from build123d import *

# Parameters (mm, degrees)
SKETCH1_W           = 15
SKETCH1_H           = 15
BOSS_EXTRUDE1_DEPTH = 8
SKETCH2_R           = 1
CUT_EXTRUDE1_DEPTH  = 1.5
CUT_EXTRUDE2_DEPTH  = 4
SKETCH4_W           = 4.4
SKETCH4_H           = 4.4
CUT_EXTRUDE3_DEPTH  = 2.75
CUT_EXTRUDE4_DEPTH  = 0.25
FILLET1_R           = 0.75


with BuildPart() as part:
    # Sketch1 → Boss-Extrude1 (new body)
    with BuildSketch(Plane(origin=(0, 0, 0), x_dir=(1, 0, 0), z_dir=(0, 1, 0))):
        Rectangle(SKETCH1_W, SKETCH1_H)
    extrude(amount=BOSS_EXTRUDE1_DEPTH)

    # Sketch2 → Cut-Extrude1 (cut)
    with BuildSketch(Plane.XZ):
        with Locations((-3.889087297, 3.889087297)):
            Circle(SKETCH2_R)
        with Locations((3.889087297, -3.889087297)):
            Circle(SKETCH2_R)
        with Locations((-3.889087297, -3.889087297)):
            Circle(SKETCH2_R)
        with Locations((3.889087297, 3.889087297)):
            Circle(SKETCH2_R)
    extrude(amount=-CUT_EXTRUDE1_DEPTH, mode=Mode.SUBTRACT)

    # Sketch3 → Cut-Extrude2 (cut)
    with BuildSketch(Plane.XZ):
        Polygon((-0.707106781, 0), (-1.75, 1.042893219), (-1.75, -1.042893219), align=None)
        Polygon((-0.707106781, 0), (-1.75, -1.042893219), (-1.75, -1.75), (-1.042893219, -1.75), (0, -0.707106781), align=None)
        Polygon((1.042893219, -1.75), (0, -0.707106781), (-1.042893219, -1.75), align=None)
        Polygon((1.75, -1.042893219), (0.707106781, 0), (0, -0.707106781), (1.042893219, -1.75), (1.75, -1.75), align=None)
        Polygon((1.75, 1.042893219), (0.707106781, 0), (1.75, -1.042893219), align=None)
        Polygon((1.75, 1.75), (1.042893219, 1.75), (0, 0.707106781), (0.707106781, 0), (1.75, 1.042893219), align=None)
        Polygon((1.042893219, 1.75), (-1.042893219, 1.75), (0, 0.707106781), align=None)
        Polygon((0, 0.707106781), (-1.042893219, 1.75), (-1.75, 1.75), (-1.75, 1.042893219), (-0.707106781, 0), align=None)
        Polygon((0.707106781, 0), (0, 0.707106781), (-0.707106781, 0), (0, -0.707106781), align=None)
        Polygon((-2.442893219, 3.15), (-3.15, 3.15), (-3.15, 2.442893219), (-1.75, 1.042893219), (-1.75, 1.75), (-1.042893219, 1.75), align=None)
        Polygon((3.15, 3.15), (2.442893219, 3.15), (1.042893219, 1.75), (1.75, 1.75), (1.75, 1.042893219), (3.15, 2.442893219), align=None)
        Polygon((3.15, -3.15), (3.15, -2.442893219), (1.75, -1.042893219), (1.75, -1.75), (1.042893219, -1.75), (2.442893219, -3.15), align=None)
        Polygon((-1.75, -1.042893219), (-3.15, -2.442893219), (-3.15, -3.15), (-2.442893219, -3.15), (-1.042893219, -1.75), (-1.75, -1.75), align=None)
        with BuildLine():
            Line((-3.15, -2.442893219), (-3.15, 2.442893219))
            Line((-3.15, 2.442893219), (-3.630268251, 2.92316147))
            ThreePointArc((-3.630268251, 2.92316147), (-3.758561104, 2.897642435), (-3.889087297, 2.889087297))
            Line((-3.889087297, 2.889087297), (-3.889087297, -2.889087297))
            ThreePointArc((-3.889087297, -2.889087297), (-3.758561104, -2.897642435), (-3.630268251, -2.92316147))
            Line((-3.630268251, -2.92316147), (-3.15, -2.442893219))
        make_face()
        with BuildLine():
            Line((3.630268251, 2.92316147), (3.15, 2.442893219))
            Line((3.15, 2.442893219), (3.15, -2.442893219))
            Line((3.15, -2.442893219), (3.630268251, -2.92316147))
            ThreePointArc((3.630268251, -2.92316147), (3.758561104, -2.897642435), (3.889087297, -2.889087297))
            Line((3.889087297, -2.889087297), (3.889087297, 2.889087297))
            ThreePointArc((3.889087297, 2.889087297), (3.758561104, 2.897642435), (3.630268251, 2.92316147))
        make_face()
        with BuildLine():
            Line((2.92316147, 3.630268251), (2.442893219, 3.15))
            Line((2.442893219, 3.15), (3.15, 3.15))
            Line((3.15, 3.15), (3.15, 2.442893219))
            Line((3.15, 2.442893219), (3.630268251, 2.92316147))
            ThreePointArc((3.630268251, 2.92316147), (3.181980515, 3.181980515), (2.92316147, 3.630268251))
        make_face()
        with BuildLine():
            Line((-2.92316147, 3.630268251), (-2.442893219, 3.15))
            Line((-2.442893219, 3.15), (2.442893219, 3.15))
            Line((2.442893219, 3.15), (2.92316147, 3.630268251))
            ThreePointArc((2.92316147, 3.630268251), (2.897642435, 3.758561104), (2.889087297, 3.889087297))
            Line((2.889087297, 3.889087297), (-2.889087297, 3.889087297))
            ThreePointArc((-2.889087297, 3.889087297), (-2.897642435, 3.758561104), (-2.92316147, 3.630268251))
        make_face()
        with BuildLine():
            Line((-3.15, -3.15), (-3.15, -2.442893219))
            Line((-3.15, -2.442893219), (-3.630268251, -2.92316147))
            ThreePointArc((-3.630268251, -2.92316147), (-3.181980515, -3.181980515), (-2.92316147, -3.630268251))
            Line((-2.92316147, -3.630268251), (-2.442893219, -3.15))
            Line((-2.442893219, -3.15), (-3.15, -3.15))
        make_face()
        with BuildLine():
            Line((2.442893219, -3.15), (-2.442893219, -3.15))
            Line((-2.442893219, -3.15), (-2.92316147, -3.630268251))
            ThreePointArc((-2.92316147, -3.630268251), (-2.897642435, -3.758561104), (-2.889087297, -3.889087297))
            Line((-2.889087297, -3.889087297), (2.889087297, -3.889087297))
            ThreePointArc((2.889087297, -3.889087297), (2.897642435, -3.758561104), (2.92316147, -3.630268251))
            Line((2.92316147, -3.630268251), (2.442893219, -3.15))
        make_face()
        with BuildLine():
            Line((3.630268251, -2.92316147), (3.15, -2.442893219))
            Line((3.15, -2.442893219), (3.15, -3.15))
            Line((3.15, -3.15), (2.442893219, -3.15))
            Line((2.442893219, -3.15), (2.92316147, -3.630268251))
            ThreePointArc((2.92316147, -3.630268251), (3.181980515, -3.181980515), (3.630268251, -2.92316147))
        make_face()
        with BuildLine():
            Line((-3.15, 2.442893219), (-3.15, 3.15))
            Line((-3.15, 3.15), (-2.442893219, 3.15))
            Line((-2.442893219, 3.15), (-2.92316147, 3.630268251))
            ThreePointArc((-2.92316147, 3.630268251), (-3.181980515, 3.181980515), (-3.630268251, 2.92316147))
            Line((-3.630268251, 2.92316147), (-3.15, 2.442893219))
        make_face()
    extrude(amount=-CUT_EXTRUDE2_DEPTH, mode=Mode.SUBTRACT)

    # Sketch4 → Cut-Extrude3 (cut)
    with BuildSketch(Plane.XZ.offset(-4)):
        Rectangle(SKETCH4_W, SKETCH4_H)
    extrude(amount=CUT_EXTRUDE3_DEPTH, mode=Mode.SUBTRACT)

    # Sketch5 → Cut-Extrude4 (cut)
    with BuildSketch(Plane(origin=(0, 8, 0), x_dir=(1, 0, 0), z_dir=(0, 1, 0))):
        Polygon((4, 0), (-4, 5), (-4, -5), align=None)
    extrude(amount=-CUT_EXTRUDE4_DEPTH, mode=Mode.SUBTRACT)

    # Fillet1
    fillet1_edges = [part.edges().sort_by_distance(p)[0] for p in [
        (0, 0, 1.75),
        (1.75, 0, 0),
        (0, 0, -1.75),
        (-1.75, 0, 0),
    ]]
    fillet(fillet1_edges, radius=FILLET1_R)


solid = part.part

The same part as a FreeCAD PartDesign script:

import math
import FreeCAD as App
import Part
import Sketcher
Q = App.Units.Quantity


def edges_at(feature, points):
    """Names of the edges that pass closest to the given points."""
    edges = feature.Shape.Edges
    near = lambda p: min(range(len(edges)), key=lambda i: edges[i].distToShape(Part.Vertex(*p))[0])
    return sorted({f"Edge{near(p) + 1}" for p in points})

doc = App.newDocument("Part")
body = doc.addObject("PartDesign::Body", "Body")

# Sketch on XZ plane
sketch1 = body.newObject("Sketcher::SketchObject", "Sketch")
sketch1.AttachmentSupport = (doc.getObject("XZ_Plane"), [""])
sketch1.MapMode = "FlatFace"
sketch1.addGeometry(Part.LineSegment(App.Vector(-8, -8, 0), App.Vector(-8, 8, 0)), False)
sketch1.addGeometry(Part.LineSegment(App.Vector(-8, 8, 0), App.Vector(8, 8, 0)), False)
sketch1.addGeometry(Part.LineSegment(App.Vector(8, 8, 0), App.Vector(8, -8, 0)), False)
sketch1.addGeometry(Part.LineSegment(App.Vector(8, -8, 0), App.Vector(-8, -8, 0)), False)
sketch1.addConstraint(Sketcher.Constraint("Coincident", 0, 2, 1, 1))
sketch1.addConstraint(Sketcher.Constraint("Coincident", 1, 2, 2, 1))
sketch1.addConstraint(Sketcher.Constraint("Coincident", 2, 2, 3, 1))
sketch1.addConstraint(Sketcher.Constraint("Coincident", 3, 2, 0, 1))
sketch1.addConstraint(Sketcher.Constraint("Vertical", 0))
sketch1.addConstraint(Sketcher.Constraint("Horizontal", 1))
sketch1.addConstraint(Sketcher.Constraint("Vertical", 2))
sketch1.addConstraint(Sketcher.Constraint("Horizontal", 3))
sketch1.addConstraint(Sketcher.Constraint("Symmetric", 0, 2, 2, 2, -1, 1))
sketch1.addConstraint(Sketcher.Constraint("Equal", 3, 0))
sketch1.addConstraint(Sketcher.Constraint("DistanceX", 1, 1, 1, 2, Q("15 mm")))
pad1 = body.newObject("PartDesign::Pad", "Pad")
pad1.Profile = sketch1
pad1.Length = 8
pad1.Reversed = True

# Sketch on XZ plane
sketch2 = body.newObject("Sketcher::SketchObject", "Sketch001")
sketch2.AttachmentSupport = (doc.getObject("XZ_Plane"), [""])
sketch2.MapMode = "FlatFace"
sketch2.addGeometry(Part.Circle(App.Vector(-3.9, 3.9, 0), App.Vector(0, 0, 1), 1), False)
sketch2.addGeometry(Part.Circle(App.Vector(3.9, -3.9, 0), App.Vector(0, 0, 1), 1), False)
sketch2.addGeometry(Part.Circle(App.Vector(-3.9, -3.9, 0), App.Vector(0, 0, 1), 1), False)
sketch2.addGeometry(Part.Circle(App.Vector(3.9, 3.9, 0), App.Vector(0, 0, 1), 1), False)
sketch2.addConstraint(Sketcher.Constraint("Equal", 0, 1))
sketch2.addConstraint(Sketcher.Constraint("Equal", 1, 2))
sketch2.addConstraint(Sketcher.Constraint("Equal", 2, 3))
sketch2.addConstraint(Sketcher.Constraint("Symmetric", 0, 3, 1, 3, -1, 1))
sketch2.addConstraint(Sketcher.Constraint("Symmetric", 2, 3, 3, 3, -1, 1))
sketch2.addConstraint(Sketcher.Constraint("Symmetric", 1, 3, 2, 3, -2))
sketch2.addConstraint(Sketcher.Constraint("Diameter", 0, Q("2 mm")))
sketch2.addConstraint(Sketcher.Constraint("DistanceX", 0, 3, -1, 1, Q("3.889087 mm")))
sketch2.addConstraint(Sketcher.Constraint("DistanceY", -1, 1, 0, 3, Q("3.889087 mm")))
pocket1 = body.newObject("PartDesign::Pocket", "Pocket")
pocket1.Profile = sketch2
pocket1.Length = 1.5

# Sketch on XZ plane
sketch3 = body.newObject("Sketcher::SketchObject", "Sketch002")
sketch3.AttachmentSupport = (doc.getObject("XZ_Plane"), [""])
sketch3.MapMode = "FlatFace"
sketch3.addGeometry(Part.ArcOfCircle(Part.Circle(App.Vector(-3.89, 3.89, 0), App.Vector(0, 0, 1), 1), math.radians(-15), math.radians(0)), False)
sketch3.addGeometry(Part.ArcOfCircle(Part.Circle(App.Vector(-3.89, 3.89, 0), App.Vector(0, 0, 1), 1), math.radians(-75), math.radians(-15)), False)
sketch3.addGeometry(Part.ArcOfCircle(Part.Circle(App.Vector(-3.89, 3.89, 0), App.Vector(0, 0, 1), 1), math.radians(-90), math.radians(-75)), False)
sketch3.addGeometry(Part.LineSegment(App.Vector(-3.89, 2.89, 0), App.Vector(-3.89, -2.89, 0)), False)
sketch3.addGeometry(Part.ArcOfCircle(Part.Circle(App.Vector(-3.89, -3.89, 0), App.Vector(0, 0, 1), 1), math.radians(75), math.radians(90)), False)
sketch3.addGeometry(Part.ArcOfCircle(Part.Circle(App.Vector(-3.89, -3.89, 0), App.Vector(0, 0, 1), 1), math.radians(15), math.radians(75)), False)
sketch3.addGeometry(Part.ArcOfCircle(Part.Circle(App.Vector(-3.89, -3.89, 0), App.Vector(0, 0, 1), 1), math.radians(0), math.radians(15)), False)
sketch3.addGeometry(Part.LineSegment(App.Vector(-2.89, -3.89, 0), App.Vector(2.89, -3.89, 0)), False)
sketch3.addGeometry(Part.ArcOfCircle(Part.Circle(App.Vector(3.89, -3.89, 0), App.Vector(0, 0, 1), 1), math.radians(165), math.radians(180)), False)
sketch3.addGeometry(Part.ArcOfCircle(Part.Circle(App.Vector(3.89, -3.89, 0), App.Vector(0, 0, 1), 1), math.radians(105), math.radians(165)), False)
sketch3.addGeometry(Part.ArcOfCircle(Part.Circle(App.Vector(3.89, -3.89, 0), App.Vector(0, 0, 1), 1), math.radians(90), math.radians(105)), False)
sketch3.addGeometry(Part.LineSegment(App.Vector(3.89, -2.89, 0), App.Vector(3.89, 2.89, 0)), False)
sketch3.addGeometry(Part.ArcOfCircle(Part.Circle(App.Vector(3.89, 3.89, 0), App.Vector(0, 0, 1), 1), math.radians(-105), math.radians(-90)), False)
sketch3.addGeometry(Part.ArcOfCircle(Part.Circle(App.Vector(3.89, 3.89, 0), App.Vector(0, 0, 1), 1), math.radians(-165), math.radians(-105)), False)
sketch3.addGeometry(Part.ArcOfCircle(Part.Circle(App.Vector(3.89, 3.89, 0), App.Vector(0, 0, 1), 1), math.radians(180), math.radians(195)), False)
sketch3.addGeometry(Part.LineSegment(App.Vector(2.89, 3.89, 0), App.Vector(-2.89, 3.89, 0)), False)
sketch3.addGeometry(Part.LineSegment(App.Vector(-3.15, -2.44, 0), App.Vector(-3.15, 2.44, 0)), False)
sketch3.addGeometry(Part.LineSegment(App.Vector(-3.15, 2.44, 0), App.Vector(-1.75, 1.04, 0)), False)
sketch3.addGeometry(Part.LineSegment(App.Vector(-1.75, 1.04, 0), App.Vector(-1.75, -1.04, 0)), False)
sketch3.addGeometry(Part.LineSegment(App.Vector(-1.75, -1.04, 0), App.Vector(-3.15, -2.44, 0)), False)
sketch3.addGeometry(Part.LineSegment(App.Vector(1.04, -1.75, 0), App.Vector(2.44, -3.15, 0)), False)
sketch3.addGeometry(Part.LineSegment(App.Vector(2.44, -3.15, 0), App.Vector(-2.44, -3.15, 0)), False)
sketch3.addGeometry(Part.LineSegment(App.Vector(-2.44, -3.15, 0), App.Vector(-1.04, -1.75, 0)), False)
sketch3.addGeometry(Part.LineSegment(App.Vector(-1.04, -1.75, 0), App.Vector(1.04, -1.75, 0)), False)
sketch3.addGeometry(Part.LineSegment(App.Vector(3.15, 2.44, 0), App.Vector(3.15, -2.44, 0)), False)
sketch3.addGeometry(Part.LineSegment(App.Vector(3.15, -2.44, 0), App.Vector(1.75, -1.04, 0)), False)
sketch3.addGeometry(Part.LineSegment(App.Vector(1.75, -1.04, 0), App.Vector(1.75, 1.04, 0)), False)
sketch3.addGeometry(Part.LineSegment(App.Vector(1.75, 1.04, 0), App.Vector(3.15, 2.44, 0)), False)
sketch3.addGeometry(Part.LineSegment(App.Vector(-1.04, 1.75, 0), App.Vector(-2.44, 3.15, 0)), False)
sketch3.addGeometry(Part.LineSegment(App.Vector(-2.44, 3.15, 0), App.Vector(2.44, 3.15, 0)), False)
sketch3.addGeometry(Part.LineSegment(App.Vector(2.44, 3.15, 0), App.Vector(1.04, 1.75, 0)), False)
sketch3.addGeometry(Part.LineSegment(App.Vector(1.04, 1.75, 0), App.Vector(-1.04, 1.75, 0)), False)
sketch3.addConstraint(Sketcher.Constraint("Tangent", 0, 1, 1, 2))
sketch3.addConstraint(Sketcher.Constraint("Tangent", 1, 1, 2, 2))
sketch3.addConstraint(Sketcher.Constraint("Coincident", 2, 1, 3, 1))
sketch3.addConstraint(Sketcher.Constraint("Coincident", 3, 2, 4, 2))
sketch3.addConstraint(Sketcher.Constraint("Tangent", 4, 1, 5, 2))
sketch3.addConstraint(Sketcher.Constraint("Tangent", 5, 1, 6, 2))
sketch3.addConstraint(Sketcher.Constraint("Coincident", 6, 1, 7, 1))
sketch3.addConstraint(Sketcher.Constraint("Coincident", 7, 2, 8, 2))
sketch3.addConstraint(Sketcher.Constraint("Tangent", 8, 1, 9, 2))
sketch3.addConstraint(Sketcher.Constraint("Tangent", 9, 1, 10, 2))
sketch3.addConstraint(Sketcher.Constraint("Coincident", 10, 1, 11, 1))
sketch3.addConstraint(Sketcher.Constraint("Coincident", 11, 2, 12, 2))
sketch3.addConstraint(Sketcher.Constraint("Tangent", 12, 1, 13, 2))
sketch3.addConstraint(Sketcher.Constraint("Tangent", 13, 1, 14, 2))
sketch3.addConstraint(Sketcher.Constraint("Coincident", 14, 1, 15, 1))
sketch3.addConstraint(Sketcher.Constraint("Coincident", 15, 2, 0, 2))
sketch3.addConstraint(Sketcher.Constraint("Coincident", 16, 2, 17, 1))
sketch3.addConstraint(Sketcher.Constraint("Coincident", 17, 2, 18, 1))
sketch3.addConstraint(Sketcher.Constraint("Coincident", 18, 2, 19, 1))
sketch3.addConstraint(Sketcher.Constraint("Coincident", 19, 2, 16, 1))
sketch3.addConstraint(Sketcher.Constraint("Coincident", 20, 2, 21, 1))
sketch3.addConstraint(Sketcher.Constraint("Coincident", 21, 2, 22, 1))
sketch3.addConstraint(Sketcher.Constraint("Coincident", 22, 2, 23, 1))
sketch3.addConstraint(Sketcher.Constraint("Coincident", 23, 2, 20, 1))
sketch3.addConstraint(Sketcher.Constraint("Coincident", 24, 2, 25, 1))
sketch3.addConstraint(Sketcher.Constraint("Coincident", 25, 2, 26, 1))
sketch3.addConstraint(Sketcher.Constraint("Coincident", 26, 2, 27, 1))
sketch3.addConstraint(Sketcher.Constraint("Coincident", 27, 2, 24, 1))
sketch3.addConstraint(Sketcher.Constraint("Coincident", 28, 2, 29, 1))
sketch3.addConstraint(Sketcher.Constraint("Coincident", 29, 2, 30, 1))
sketch3.addConstraint(Sketcher.Constraint("Coincident", 30, 2, 31, 1))
sketch3.addConstraint(Sketcher.Constraint("Coincident", 31, 2, 28, 1))
sketch3.addConstraint(Sketcher.Constraint("Vertical", 3))
sketch3.addConstraint(Sketcher.Constraint("Horizontal", 7))
sketch3.addConstraint(Sketcher.Constraint("Vertical", 11))
sketch3.addConstraint(Sketcher.Constraint("Horizontal", 15))
sketch3.addConstraint(Sketcher.Constraint("Vertical", 16))
sketch3.addConstraint(Sketcher.Constraint("Vertical", 18))
sketch3.addConstraint(Sketcher.Constraint("Horizontal", 21))
sketch3.addConstraint(Sketcher.Constraint("Horizontal", 23))
sketch3.addConstraint(Sketcher.Constraint("Vertical", 24))
sketch3.addConstraint(Sketcher.Constraint("Vertical", 26))
sketch3.addConstraint(Sketcher.Constraint("Horizontal", 29))
sketch3.addConstraint(Sketcher.Constraint("Horizontal", 31))
sketch3.addConstraint(Sketcher.Constraint("Coincident", 2, 3, 0, 3))
sketch3.addConstraint(Sketcher.Constraint("Coincident", 6, 3, 4, 3))
sketch3.addConstraint(Sketcher.Constraint("Coincident", 10, 3, 8, 3))
sketch3.addConstraint(Sketcher.Constraint("Coincident", 14, 3, 12, 3))
sketch3.addConstraint(Sketcher.Constraint("Equal", 2, 4))
sketch3.addConstraint(Sketcher.Constraint("Equal", 6, 8))
sketch3.addConstraint(Sketcher.Constraint("Equal", 10, 12))
sketch3.addConstraint(Sketcher.Constraint("Symmetric", 0, 3, 8, 3, -1, 1))
sketch3.addConstraint(Sketcher.Constraint("Symmetric", 4, 3, 12, 3, -1, 1))
sketch3.addConstraint(Sketcher.Constraint("Symmetric", 16, 2, 24, 2, -1, 1))
sketch3.addConstraint(Sketcher.Constraint("Symmetric", 17, 2, 25, 2, -1, 1))
sketch3.addConstraint(Sketcher.Constraint("Symmetric", 20, 2, 28, 2, -1, 1))
sketch3.addConstraint(Sketcher.Constraint("Symmetric", 22, 2, 30, 2, -1, 1))
sketch3.addConstraint(Sketcher.Constraint("Symmetric", 4, 3, 8, 3, -2))
sketch3.addConstraint(Sketcher.Constraint("Perpendicular", 17, 19))
sketch3.addConstraint(Sketcher.Constraint("Perpendicular", 19, 20))
sketch3.addConstraint(Sketcher.Constraint("Perpendicular", 20, 22))
sketch3.addConstraint(Sketcher.Constraint("Perpendicular", 25, 27))
sketch3.addConstraint(Sketcher.Constraint("Perpendicular", 27, 28))
sketch3.addConstraint(Sketcher.Constraint("Perpendicular", 28, 30))
sketch3.addConstraint(Sketcher.Constraint("Horizontal", 10, 3, 6, 1))
sketch3.addConstraint(Sketcher.Constraint("Horizontal", 5, 1, 8, 1))
sketch3.addConstraint(Sketcher.Constraint("Horizontal", 4, 1, 9, 1))
sketch3.addConstraint(Sketcher.Constraint("Horizontal", 1, 1, 12, 1))
sketch3.addConstraint(Sketcher.Constraint("Horizontal", 0, 1, 13, 1))
sketch3.addConstraint(Sketcher.Constraint("Horizontal", 13, 3, 14, 1))
sketch3.addConstraint(Sketcher.Constraint("Horizontal", 19, 2, 24, 2))
sketch3.addConstraint(Sketcher.Constraint("Horizontal", 18, 2, 25, 2))
sketch3.addConstraint(Sketcher.Constraint("Horizontal", 17, 2, 26, 2))
sketch3.addConstraint(Sketcher.Constraint("Vertical", 6, 3, 2, 1))
sketch3.addConstraint(Sketcher.Constraint("Vertical", 1, 1, 4, 1))
sketch3.addConstraint(Sketcher.Constraint("Vertical", 0, 1, 5, 1))
sketch3.addConstraint(Sketcher.Constraint("Vertical", 14, 3, 10, 1))
sketch3.addConstraint(Sketcher.Constraint("Vertical", 21, 2, 28, 2))
sketch3.addConstraint(Sketcher.Constraint("Equal", 15, 3))
sketch3.addConstraint(Sketcher.Constraint("Equal", 29, 16))
sketch3.addConstraint(Sketcher.Constraint("Equal", 31, 18))
sketch3.addConstraint(Sketcher.Constraint("Radius", 0, Q("1 mm")))
sketch3.addConstraint(Sketcher.Constraint("DistanceX", 16, 2, 17, 2, Q("1.4 mm")))
sketch3.addConstraint(Sketcher.Constraint("DistanceX", 16, 2, -1, 1, Q("3.15 mm")))
sketch3.addConstraint(Sketcher.Constraint("DistanceY", 20, 2, -1, 1, Q("3.15 mm")))
sketch3.addConstraint(Sketcher.Constraint("DistanceX", 7, 1, 7, 2, Q("5.778175 mm")))
sketch3.addConstraint(Sketcher.Constraint("DistanceX", 21, 2, 21, 1, Q("4.885786 mm")))
sketch3.addConstraint(Sketcher.Constraint("DistanceX", 0, 1, -1, 1, Q("2.923161 mm")))
sketch3.addConstraint(Sketcher.Constraint("DistanceX", 1, 1, -1, 1, Q("3.630268 mm")))
pocket2 = body.newObject("PartDesign::Pocket", "Pocket001")
pocket2.Profile = sketch3
pocket2.Length = 4

# Sketch on XZ plane
sketch4 = body.newObject("Sketcher::SketchObject", "Sketch003")
sketch4.AttachmentSupport = (doc.getObject("XZ_Plane"), [""])
sketch4.MapMode = "FlatFace"
sketch4.AttachmentOffset = App.Placement(App.Vector(0, 0, -4), App.Rotation())
sketch4.addGeometry(Part.LineSegment(App.Vector(-2.2, 2.2, 0), App.Vector(-2.2, -2.2, 0)), False)
sketch4.addGeometry(Part.LineSegment(App.Vector(-2.2, -2.2, 0), App.Vector(2.2, -2.2, 0)), False)
sketch4.addGeometry(Part.LineSegment(App.Vector(2.2, -2.2, 0), App.Vector(2.2, 2.2, 0)), False)
sketch4.addGeometry(Part.LineSegment(App.Vector(2.2, 2.2, 0), App.Vector(-2.2, 2.2, 0)), False)
sketch4.addConstraint(Sketcher.Constraint("Coincident", 0, 2, 1, 1))
sketch4.addConstraint(Sketcher.Constraint("Coincident", 1, 2, 2, 1))
sketch4.addConstraint(Sketcher.Constraint("Coincident", 2, 2, 3, 1))
sketch4.addConstraint(Sketcher.Constraint("Coincident", 3, 2, 0, 1))
sketch4.addConstraint(Sketcher.Constraint("Vertical", 0))
sketch4.addConstraint(Sketcher.Constraint("Horizontal", 1))
sketch4.addConstraint(Sketcher.Constraint("Vertical", 2))
sketch4.addConstraint(Sketcher.Constraint("Horizontal", 3))
sketch4.addConstraint(Sketcher.Constraint("Symmetric", 0, 2, 2, 2, -1, 1))
sketch4.addConstraint(Sketcher.Constraint("Equal", 3, 0))
sketch4.addConstraint(Sketcher.Constraint("DistanceX", 1, 1, 1, 2, Q("4.4 mm")))
pocket3 = body.newObject("PartDesign::Pocket", "Pocket002")
pocket3.Profile = sketch4
pocket3.Length = 2.75
pocket3.Reversed = True

# Sketch on XZ plane
sketch5 = body.newObject("Sketcher::SketchObject", "Sketch004")
sketch5.AttachmentSupport = (doc.getObject("XZ_Plane"), [""])
sketch5.MapMode = "FlatFace"
sketch5.AttachmentOffset = App.Placement(App.Vector(0, 0, -8), App.Rotation())
sketch5.addGeometry(Part.LineSegment(App.Vector(4, 0, 0), App.Vector(-4, -5, 0)), False)
sketch5.addGeometry(Part.LineSegment(App.Vector(-4, -5, 0), App.Vector(-4, 5, 0)), False)
sketch5.addGeometry(Part.LineSegment(App.Vector(-4, 5, 0), App.Vector(4, 0, 0)), False)
sketch5.addConstraint(Sketcher.Constraint("Coincident", 0, 2, 1, 1))
sketch5.addConstraint(Sketcher.Constraint("Coincident", 1, 2, 2, 1))
sketch5.addConstraint(Sketcher.Constraint("Coincident", 2, 2, 0, 1))
sketch5.addConstraint(Sketcher.Constraint("Vertical", 1))
sketch5.addConstraint(Sketcher.Constraint("PointOnObject", 2, 2, -1))
sketch5.addConstraint(Sketcher.Constraint("Equal", 0, 2))
sketch5.addConstraint(Sketcher.Constraint("DistanceY", 1, 1, 1, 2, Q("10 mm")))
sketch5.addConstraint(Sketcher.Constraint("DistanceX", 0, 2, -1, 1, Q("4 mm")))
sketch5.addConstraint(Sketcher.Constraint("DistanceX", -1, 1, 2, 2, Q("4 mm")))
pocket4 = body.newObject("PartDesign::Pocket", "Pocket003")
pocket4.Profile = sketch5
pocket4.Length = 0.25
pocket4.Reversed = True
doc.recompute()

fillet = body.newObject("PartDesign::Fillet", "Fillet")
fillet.Base = (pocket4, edges_at(pocket4, [
    (0, 0, 1.75),
    (1.75, 0, 0),
    (0, 0, -1.75),
    (-1.75, 0, 0),
]))
fillet.Radius = 0.75

doc.recompute()
